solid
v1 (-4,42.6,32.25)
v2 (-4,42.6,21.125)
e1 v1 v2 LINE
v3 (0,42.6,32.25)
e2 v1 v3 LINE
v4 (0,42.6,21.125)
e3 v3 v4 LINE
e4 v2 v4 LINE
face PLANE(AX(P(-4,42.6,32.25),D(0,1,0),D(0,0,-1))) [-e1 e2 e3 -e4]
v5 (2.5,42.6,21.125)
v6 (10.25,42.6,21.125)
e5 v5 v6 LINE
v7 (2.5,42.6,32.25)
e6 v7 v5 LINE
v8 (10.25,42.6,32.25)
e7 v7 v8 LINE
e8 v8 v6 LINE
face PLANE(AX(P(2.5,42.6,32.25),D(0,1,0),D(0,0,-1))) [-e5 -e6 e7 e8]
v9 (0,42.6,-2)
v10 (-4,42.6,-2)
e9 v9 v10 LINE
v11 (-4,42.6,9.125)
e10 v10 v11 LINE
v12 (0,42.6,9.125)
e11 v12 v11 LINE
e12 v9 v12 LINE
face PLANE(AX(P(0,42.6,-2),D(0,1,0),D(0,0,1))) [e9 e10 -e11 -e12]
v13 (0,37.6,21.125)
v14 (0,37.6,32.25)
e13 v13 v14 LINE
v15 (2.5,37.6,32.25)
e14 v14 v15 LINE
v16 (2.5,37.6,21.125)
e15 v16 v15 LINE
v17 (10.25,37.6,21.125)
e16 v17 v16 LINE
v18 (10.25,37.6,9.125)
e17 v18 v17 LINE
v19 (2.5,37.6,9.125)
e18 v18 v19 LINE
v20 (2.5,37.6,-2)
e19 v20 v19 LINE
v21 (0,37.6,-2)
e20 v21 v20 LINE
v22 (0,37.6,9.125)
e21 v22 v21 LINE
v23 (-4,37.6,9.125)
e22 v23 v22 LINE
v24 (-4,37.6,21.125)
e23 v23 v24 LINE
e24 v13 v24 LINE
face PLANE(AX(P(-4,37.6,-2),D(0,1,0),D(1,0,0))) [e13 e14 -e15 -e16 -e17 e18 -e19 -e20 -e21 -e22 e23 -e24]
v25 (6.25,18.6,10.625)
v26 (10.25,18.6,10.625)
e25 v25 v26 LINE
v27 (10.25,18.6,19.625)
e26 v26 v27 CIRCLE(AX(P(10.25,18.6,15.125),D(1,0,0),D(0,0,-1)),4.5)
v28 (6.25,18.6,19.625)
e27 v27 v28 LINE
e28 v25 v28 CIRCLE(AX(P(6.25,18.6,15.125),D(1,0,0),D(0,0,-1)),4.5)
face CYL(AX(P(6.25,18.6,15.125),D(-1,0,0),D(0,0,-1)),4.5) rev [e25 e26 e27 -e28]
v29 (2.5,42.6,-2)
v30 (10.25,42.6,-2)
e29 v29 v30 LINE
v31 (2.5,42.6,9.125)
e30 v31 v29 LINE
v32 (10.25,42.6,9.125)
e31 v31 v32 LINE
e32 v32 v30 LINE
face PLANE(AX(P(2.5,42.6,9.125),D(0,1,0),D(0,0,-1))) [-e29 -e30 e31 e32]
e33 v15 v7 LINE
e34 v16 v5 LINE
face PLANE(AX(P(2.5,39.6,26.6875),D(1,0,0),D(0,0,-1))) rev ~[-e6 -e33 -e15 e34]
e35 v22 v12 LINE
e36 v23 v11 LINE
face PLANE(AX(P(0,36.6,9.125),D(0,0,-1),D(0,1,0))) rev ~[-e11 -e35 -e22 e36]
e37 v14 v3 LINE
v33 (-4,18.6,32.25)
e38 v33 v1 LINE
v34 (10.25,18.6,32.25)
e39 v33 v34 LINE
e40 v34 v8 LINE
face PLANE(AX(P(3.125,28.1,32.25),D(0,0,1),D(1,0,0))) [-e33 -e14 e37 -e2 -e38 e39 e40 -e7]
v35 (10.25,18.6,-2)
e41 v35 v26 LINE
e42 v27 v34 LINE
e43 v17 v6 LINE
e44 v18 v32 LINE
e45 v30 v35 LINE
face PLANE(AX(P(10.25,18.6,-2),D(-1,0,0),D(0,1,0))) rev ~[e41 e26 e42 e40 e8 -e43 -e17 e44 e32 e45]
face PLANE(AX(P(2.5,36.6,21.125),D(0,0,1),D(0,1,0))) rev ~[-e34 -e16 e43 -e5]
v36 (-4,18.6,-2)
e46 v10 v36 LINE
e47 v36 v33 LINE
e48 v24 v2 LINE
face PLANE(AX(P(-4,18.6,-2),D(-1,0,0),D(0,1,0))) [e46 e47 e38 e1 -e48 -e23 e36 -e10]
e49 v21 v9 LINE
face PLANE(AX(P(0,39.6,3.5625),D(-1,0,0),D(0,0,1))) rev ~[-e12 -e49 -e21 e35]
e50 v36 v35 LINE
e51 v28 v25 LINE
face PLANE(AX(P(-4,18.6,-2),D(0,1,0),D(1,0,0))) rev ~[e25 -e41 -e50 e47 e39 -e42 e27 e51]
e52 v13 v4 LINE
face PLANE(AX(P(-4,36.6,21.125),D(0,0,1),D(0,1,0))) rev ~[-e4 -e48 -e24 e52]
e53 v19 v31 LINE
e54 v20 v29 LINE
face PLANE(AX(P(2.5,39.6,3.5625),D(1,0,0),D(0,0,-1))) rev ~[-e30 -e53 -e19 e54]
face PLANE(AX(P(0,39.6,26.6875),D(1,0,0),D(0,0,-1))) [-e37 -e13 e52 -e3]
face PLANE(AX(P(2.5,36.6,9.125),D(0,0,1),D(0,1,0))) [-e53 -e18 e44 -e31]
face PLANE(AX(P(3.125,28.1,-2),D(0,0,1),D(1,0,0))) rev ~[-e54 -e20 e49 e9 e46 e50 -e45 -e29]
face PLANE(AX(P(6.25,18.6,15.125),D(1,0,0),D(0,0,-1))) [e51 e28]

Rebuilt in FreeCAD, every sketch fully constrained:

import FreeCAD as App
import Part
import Sketcher
from FreeCAD import Vector
Q = App.Units.Quantity

doc = App.newDocument("Part")
params = doc.addObject("Spreadsheet::Sheet", "Params")
for row, (alias, value) in enumerate([
    ("sketch1_diameter", "9 mm"),
    ("pad1_length", "4 mm"),
    ("sketch2_width", "6 mm"),
    ("pad2_length", "4 mm"),
    ("sketch3_width", "6 mm"),
    ("pad3_length", "4 mm"),
    ("sketch4_width", "6 mm"),
    ("pad4_length", "7.75 mm"),
    ("sketch5_height", "19 mm"),
    ("sketch5_width", "14.25 mm"),
    ("pad5_length", "34.25 mm"),
    ("sketch6_width", "6 mm"),
    ("pad6_length", "7.75 mm"),
], start=1):
    params.set(f"A{row}", alias)
    params.set(f"B{row}", "=" + value)
    params.setAlias(f"B{row}", alias)

body = doc.addObject("PartDesign::Body", "Body")

# Sketch on YZ plane
sketch1 = body.newObject("Sketcher::SketchObject", "Sketch")
sketch1.AttachmentSupport = (doc.getObject("YZ_Plane"), [""])
sketch1.MapMode = "FlatFace"
sketch1.AttachmentOffset = App.Placement(Vector(0, 0, 6.25), App.Rotation())
sketch1.addGeometry(Part.Circle(Vector(18.6, 15.1, 0), Vector(0, 0, 1), 4.5), False)
sketch1.addConstraint(Sketcher.Constraint("Diameter", 0, Q("9 mm")))
sketch1.addConstraint(Sketcher.Constraint("DistanceX", -1, 1, 0, 3, Q("18.6 mm")))
sketch1.addConstraint(Sketcher.Constraint("DistanceY", -1, 1, 0, 3, Q("15.125 mm")))
sketch1.setExpression("Constraints[0]", "Params.sketch1_diameter")
pad1 = body.newObject("PartDesign::Pad", "Pad")
pad1.Profile = sketch1
pad1.setExpression("Length", "Params.pad1_length")
body2 = doc.addObject("PartDesign::Body", "Body001")

# Sketch on YZ plane
sketch2 = body2.newObject("Sketcher::SketchObject", "Sketch001")
sketch2.AttachmentSupport = (doc.getObject("YZ_Plane001"), [""])
sketch2.MapMode = "FlatFace"
sketch2.addGeometry(Part.LineSegment(Vector(43, -2, 0), Vector(37, -2, 0)), False)
sketch2.addGeometry(Part.LineSegment(Vector(37, -2, 0), Vector(37, 9, 0)), False)
sketch2.addGeometry(Part.LineSegment(Vector(37, 9, 0), Vector(43, 9, 0)), False)
sketch2.addGeometry(Part.LineSegment(Vector(43, 9, 0), Vector(43, -2, 0)), False)
sketch2.addConstraint(Sketcher.Constraint("Coincident", 0, 2, 1, 1))
sketch2.addConstraint(Sketcher.Constraint("Coincident", 1, 2, 2, 1))
sketch2.addConstraint(Sketcher.Constraint("Coincident", 2, 2, 3, 1))
sketch2.addConstraint(Sketcher.Constraint("Coincident", 3, 2, 0, 1))
sketch2.addConstraint(Sketcher.Constraint("Horizontal", 0))
sketch2.addConstraint(Sketcher.Constraint("Vertical", 1))
sketch2.addConstraint(Sketcher.Constraint("Horizontal", 2))
sketch2.addConstraint(Sketcher.Constraint("Vertical", 3))
sketch2.addConstraint(Sketcher.Constraint("DistanceX", 0, 2, 0, 1, Q("6 mm")))
sketch2.addConstraint(Sketcher.Constraint("DistanceY", 0, 2, -1, 1, Q("2 mm")))
sketch2.addConstraint(Sketcher.Constraint("DistanceX", -1, 1, 0, 2, Q("36.6 mm")))
sketch2.addConstraint(Sketcher.Constraint("DistanceY", 1, 1, 1, 2, Q("11.125 mm")))
sketch2.setExpression("Constraints[8]", "Params.sketch2_width")
pad2 = body2.newObject("PartDesign::Pad", "Pad001")
pad2.Profile = sketch2
pad2.setExpression("Length", "Params.pad2_length")
pad2.Reversed = True
body3 = doc.addObject("PartDesign::Body", "Body002")

# Sketch on YZ plane
sketch3 = body3.newObject("Sketcher::SketchObject", "Sketch002")
sketch3.AttachmentSupport = (doc.getObject("YZ_Plane002"), [""])
sketch3.MapMode = "FlatFace"
sketch3.AttachmentOffset = App.Placement(Vector(0, 0, -4), App.Rotation())
sketch3.addGeometry(Part.LineSegment(Vector(43, 32, 0), Vector(37, 32, 0)), False)
sketch3.addGeometry(Part.LineSegment(Vector(37, 32, 0), Vector(37, 21, 0)), False)
sketch3.addGeometry(Part.LineSegment(Vector(37, 21, 0), Vector(43, 21, 0)), False)
sketch3.addGeometry(Part.LineSegment(Vector(43, 21, 0), Vector(43, 32, 0)), False)
sketch3.addConstraint(Sketcher.Constraint("Coincident", 0, 2, 1, 1))
sketch3.addConstraint(Sketcher.Constraint("Coincident", 1, 2, 2, 1))
sketch3.addConstraint(Sketcher.Constraint("Coincident", 2, 2, 3, 1))
sketch3.addConstraint(Sketcher.Constraint("Coincident", 3, 2, 0, 1))
sketch3.addConstraint(Sketcher.Constraint("Horizontal", 0))
sketch3.addConstraint(Sketcher.Constraint("Vertical", 1))
sketch3.addConstraint(Sketcher.Constraint("Horizontal", 2))
sketch3.addConstraint(Sketcher.Constraint("Vertical", 3))
sketch3.addConstraint(Sketcher.Constraint("DistanceX", 0, 2, 0, 1, Q("6 mm")))
sketch3.addConstraint(Sketcher.Constraint("DistanceX", -1, 1, 0, 2, Q("36.6 mm")))
sketch3.addConstraint(Sketcher.Constraint("DistanceY", 1, 2, 1, 1, Q("11.125 mm")))
sketch3.addConstraint(Sketcher.Constraint("DistanceY", -1, 1, 0, 2, Q("32.25 mm")))
sketch3.setExpression("Constraints[8]", "Params.sketch3_width")
pad3 = body3.newObject("PartDesign::Pad", "Pad002")
pad3.Profile = sketch3
pad3.setExpression("Length", "Params.pad3_length")
body4 = doc.addObject("PartDesign::Body", "Body003")

# Sketch on YZ plane
sketch4 = body4.newObject("Sketcher::SketchObject", "Sketch003")
sketch4.AttachmentSupport = (doc.getObject("YZ_Plane003"), [""])
sketch4.MapMode = "FlatFace"
sketch4.AttachmentOffset = App.Placement(Vector(0, 0, 2.5), App.Rotation())
sketch4.addGeometry(Part.LineSegment(Vector(43, 32, 0), Vector(37, 32, 0)), False)
sketch4.addGeometry(Part.LineSegment(Vector(37, 32, 0), Vector(37, 21, 0)), False)
sketch4.addGeometry(Part.LineSegment(Vector(37, 21, 0), Vector(43, 21, 0)), False)
sketch4.addGeometry(Part.LineSegment(Vector(43, 21, 0), Vector(43, 32, 0)), False)
sketch4.addConstraint(Sketcher.Constraint("Coincident", 0, 2, 1, 1))
sketch4.addConstraint(Sketcher.Constraint("Coincident", 1, 2, 2, 1))
sketch4.addConstraint(Sketcher.Constraint("Coincident", 2, 2, 3, 1))
sketch4.addConstraint(Sketcher.Constraint("Coincident", 3, 2, 0, 1))
sketch4.addConstraint(Sketcher.Constraint("Horizontal", 0))
sketch4.addConstraint(Sketcher.Constraint("Vertical", 1))
sketch4.addConstraint(Sketcher.Constraint("Horizontal", 2))
sketch4.addConstraint(Sketcher.Constraint("Vertical", 3))
sketch4.addConstraint(Sketcher.Constraint("DistanceX", 0, 2, 0, 1, Q("6 mm")))
sketch4.addConstraint(Sketcher.Constraint("DistanceX", -1, 1, 0, 2, Q("36.6 mm")))
sketch4.addConstraint(Sketcher.Constraint("DistanceY", 1, 2, 1, 1, Q("11.125 mm")))
sketch4.addConstraint(Sketcher.Constraint("DistanceY", -1, 1, 0, 2, Q("32.25 mm")))
sketch4.setExpression("Constraints[8]", "Params.sketch4_width")
pad4 = body4.newObject("PartDesign::Pad", "Pad003")
pad4.Profile = sketch4
pad4.setExpression("Length", "Params.pad4_length")
body5 = doc.addObject("PartDesign::Body", "Body004")

# Sketch on XY plane
sketch5 = body5.newObject("Sketcher::SketchObject", "Sketch004")
sketch5.AttachmentSupport = (doc.getObject("XY_Plane004"), [""])
sketch5.MapMode = "FlatFace"
sketch5.AttachmentOffset = App.Placement(Vector(0, 0, -2), App.Rotation())
sketch5.addGeometry(Part.LineSegment(Vector(-4, 38, 0), Vector(-4, 19, 0)), False)
sketch5.addGeometry(Part.LineSegment(Vector(-4, 19, 0), Vector(10, 19, 0)), False)
sketch5.addGeometry(Part.LineSegment(Vector(10, 19, 0), Vector(10, 38, 0)), False)
sketch5.addGeometry(Part.LineSegment(Vector(10, 38, 0), Vector(-4, 38, 0)), False)
sketch5.addConstraint(Sketcher.Constraint("Coincident", 0, 2, 1, 1))
sketch5.addConstraint(Sketcher.Constraint("Coincident", 1, 2, 2, 1))
sketch5.addConstraint(Sketcher.Constraint("Coincident", 2, 2, 3, 1))
sketch5.addConstraint(Sketcher.Constraint("Coincident", 3, 2, 0, 1))
sketch5.addConstraint(Sketcher.Constraint("Vertical", 0))
sketch5.addConstraint(Sketcher.Constraint("Horizontal", 1))
sketch5.addConstraint(Sketcher.Constraint("Vertical", 2))
sketch5.addConstraint(Sketcher.Constraint("Horizontal", 3))
sketch5.addConstraint(Sketcher.Constraint("DistanceY", 0, 2, 0, 1, Q("19 mm")))
sketch5.addConstraint(Sketcher.Constraint("DistanceX", 0, 2, -1, 1, Q("4 mm")))
sketch5.addConstraint(Sketcher.Constraint("DistanceX", 1, 1, 1, 2, Q("14.25 mm")))
sketch5.addConstraint(Sketcher.Constraint("DistanceY", -1, 1, 0, 2, Q("18.6 mm")))
sketch5.setExpression("Constraints[8]", "Params.sketch5_height")
sketch5.setExpression("Constraints[10]", "Params.sketch5_width")
pad5 = body5.newObject("PartDesign::Pad", "Pad004")
pad5.Profile = sketch5
pad5.setExpression("Length", "Params.pad5_length")
body6 = doc.addObject("PartDesign::Body", "Body005")
body6.AllowCompound = True

# Sketch on YZ plane
sketch6 = body6.newObject("Sketcher::SketchObject", "Sketch005")
sketch6.AttachmentSupport = (doc.getObject("YZ_Plane005"), [""])
sketch6.MapMode = "FlatFace"
sketch6.AttachmentOffset = App.Placement(Vector(0, 0, 2.5), App.Rotation())
sketch6.addGeometry(Part.LineSegment(Vector(43, 9, 0), Vector(37, 9, 0)), False)
sketch6.addGeometry(Part.LineSegment(Vector(37, 9, 0), Vector(37, -2, 0)), False)
sketch6.addGeometry(Part.LineSegment(Vector(37, -2, 0), Vector(43, -2, 0)), False)
sketch6.addGeometry(Part.LineSegment(Vector(43, -2, 0), Vector(43, 9, 0)), False)
sketch6.addConstraint(Sketcher.Constraint("Coincident", 0, 2, 1, 1))
sketch6.addConstraint(Sketcher.Constraint("Coincident", 1, 2, 2, 1))
sketch6.addConstraint(Sketcher.Constraint("Coincident", 2, 2, 3, 1))
sketch6.addConstraint(Sketcher.Constraint("Coincident", 3, 2, 0, 1))
sketch6.addConstraint(Sketcher.Constraint("Horizontal", 0))
sketch6.addConstraint(Sketcher.Constraint("Vertical", 1))
sketch6.addConstraint(Sketcher.Constraint("Horizontal", 2))
sketch6.addConstraint(Sketcher.Constraint("Vertical", 3))
sketch6.addConstraint(Sketcher.Constraint("DistanceX", 0, 2, 0, 1, Q("6 mm")))
sketch6.addConstraint(Sketcher.Constraint("DistanceY", 1, 2, -1, 1, Q("2 mm")))
sketch6.addConstraint(Sketcher.Constraint("DistanceX", -1, 1, 0, 2, Q("36.6 mm")))
sketch6.addConstraint(Sketcher.Constraint("DistanceY", 1, 2, 1, 1, Q("11.125 mm")))
sketch6.setExpression("Constraints[8]", "Params.sketch6_width")
pad6 = body6.newObject("PartDesign::Pad", "Pad005")
pad6.Profile = sketch6
pad6.setExpression("Length", "Params.pad6_length")
doc.recompute()

boolean = body6.newObject("PartDesign::Boolean", "Boolean")
boolean.Type = "Fuse"
boolean.addObjects([body2])
doc.recompute()

boolean2 = body6.newObject("PartDesign::Boolean", "Boolean001")
boolean2.Type = "Fuse"
boolean2.addObjects([body3])
doc.recompute()

boolean3 = body6.newObject("PartDesign::Boolean", "Boolean002")
boolean3.Type = "Fuse"
boolean3.addObjects([body4])
doc.recompute()

boolean4 = body6.newObject("PartDesign::Boolean", "Boolean003")
boolean4.Type = "Fuse"
boolean4.addObjects([body5])
doc.recompute()

boolean5 = body6.newObject("PartDesign::Boolean", "Boolean004")
boolean5.Type = "Cut"
boolean5.addObjects([body])

doc.recompute()
